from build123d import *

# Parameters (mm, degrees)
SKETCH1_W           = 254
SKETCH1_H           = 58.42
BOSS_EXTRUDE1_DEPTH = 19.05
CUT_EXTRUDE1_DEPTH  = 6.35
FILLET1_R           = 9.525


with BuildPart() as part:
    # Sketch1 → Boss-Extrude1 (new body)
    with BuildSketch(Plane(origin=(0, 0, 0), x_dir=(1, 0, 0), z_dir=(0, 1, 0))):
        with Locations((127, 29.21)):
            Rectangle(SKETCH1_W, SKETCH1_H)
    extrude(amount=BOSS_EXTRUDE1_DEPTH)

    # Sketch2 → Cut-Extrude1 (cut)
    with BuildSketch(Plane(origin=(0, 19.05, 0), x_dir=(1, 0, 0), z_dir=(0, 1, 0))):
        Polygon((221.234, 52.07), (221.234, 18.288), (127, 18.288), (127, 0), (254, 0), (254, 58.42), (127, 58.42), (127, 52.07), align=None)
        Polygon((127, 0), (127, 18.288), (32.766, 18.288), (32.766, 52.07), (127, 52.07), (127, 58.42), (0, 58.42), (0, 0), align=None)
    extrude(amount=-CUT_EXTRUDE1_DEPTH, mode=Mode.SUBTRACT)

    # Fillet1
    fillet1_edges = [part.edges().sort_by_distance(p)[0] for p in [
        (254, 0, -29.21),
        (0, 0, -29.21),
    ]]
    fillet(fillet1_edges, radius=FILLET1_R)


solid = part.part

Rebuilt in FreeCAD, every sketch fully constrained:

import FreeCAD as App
import Part
import Sketcher

V = App.Vector
Q = App.Units.Quantity


def edges_at(feature, points):
    """Names of the edges that pass closest to the given points."""
    edges = feature.Shape.Edges
    near = lambda p: min(range(len(edges)), key=lambda i: edges[i].distToShape(Part.Vertex(*p))[0])
    return sorted({f"Edge{near(p) + 1}" for p in points})

doc = App.newDocument("Part")
body = doc.addObject("PartDesign::Body", "Body")

# Sketch on XZ plane
sketch1 = body.newObject("Sketcher::SketchObject", "Sketch")
sketch1.AttachmentSupport = (doc.getObject("XZ_Plane"), [""])
sketch1.MapMode = "FlatFace"
sketch1.addGeometry([
    Part.LineSegment(V(0, -58.42, 0), V(0, 0, 0)),
    Part.LineSegment(V(0, 0, 0), V(254, 0, 0)),
    Part.LineSegment(V(254, 0, 0), V(254, -58.42, 0)),
    Part.LineSegment(V(254, -58.42, 0), V(0, -58.42, 0)),
], False)
sketch1.addConstraint([
    Sketcher.Constraint("Coincident", 0, 2, 1, 1),
    Sketcher.Constraint("Coincident", 1, 2, 2, 1),
    Sketcher.Constraint("Coincident", 2, 2, 3, 1),
    Sketcher.Constraint("Coincident", 3, 2, 0, 1),
    Sketcher.Constraint("Vertical", 0),
    Sketcher.Constraint("Horizontal", 1),
    Sketcher.Constraint("Vertical", 2),
    Sketcher.Constraint("Horizontal", 3),
    Sketcher.Constraint("Coincident", 0, 2, -1, 1),
    Sketcher.Constraint("DistanceX", 1, 1, 1, 2, Q("10 in")),
    Sketcher.Constraint("DistanceY", 0, 1, 0, 2, Q("2.3 in")),
])
pad1 = body.newObject("PartDesign::Pad", "Pad")
pad1.Profile = sketch1
pad1.Length = Q("0.75 in")
pad1.Reversed = True

# Sketch on XZ plane
sketch2 = body.newObject("Sketcher::SketchObject", "Sketch001")
sketch2.AttachmentSupport = (doc.getObject("XZ_Plane"), [""])
sketch2.MapMode = "FlatFace"
sketch2.AttachmentOffset = App.Placement(V(0, 0, -0.75 * 25.4), App.Rotation())
sketch2.addGeometry([
    Part.LineSegment(V(254, 0, 0), V(254, -58.42, 0)),  # 0
    Part.LineSegment(V(254, -58.42, 0), V(0, -58.42, 0)),  # 1
    Part.LineSegment(V(0, -58.42, 0), V(0, 0, 0)),  # 2
    Part.LineSegment(V(0, 0, 0), V(254, 0, 0)),  # 3
    Part.LineSegment(V(221.234, -52.07, 0), V(221.234, -18.288, 0)),  # 4
    Part.LineSegment(V(221.234, -18.288, 0), V(32.766, -18.288, 0)),  # 5
    Part.LineSegment(V(32.766, -18.288, 0), V(32.766, -52.07, 0)),  # 6
    Part.LineSegment(V(32.766, -52.07, 0), V(221.234, -52.07, 0)),  # 7
], False)
sketch2.addConstraint([
    Sketcher.Constraint("Coincident", 0, 2, 1, 1),
    Sketcher.Constraint("Coincident", 1, 2, 2, 1),
    Sketcher.Constraint("Coincident", 2, 2, 3, 1),
    Sketcher.Constraint("Coincident", 3, 2, 0, 1),
    Sketcher.Constraint("Coincident", 4, 2, 5, 1),
    Sketcher.Constraint("Coincident", 5, 2, 6, 1),
    Sketcher.Constraint("Coincident", 6, 2, 7, 1),
    Sketcher.Constraint("Coincident", 7, 2, 4, 1),
    Sketcher.Constraint("Vertical", 0),
    Sketcher.Constraint("Horizontal", 1),
    Sketcher.Constraint("Vertical", 2),
    Sketcher.Constraint("Horizontal", 3),
    Sketcher.Constraint("Vertical", 4),
    Sketcher.Constraint("Horizontal", 5),
    Sketcher.Constraint("Vertical", 6),
    Sketcher.Constraint("Horizontal", 7),
    Sketcher.Constraint("Coincident", 2, 2, -1, 1),
    Sketcher.Constraint("DistanceX", 1, 2, 1, 1, Q("10 in")),
    Sketcher.Constraint("DistanceY", 0, 2, 0, 1, Q("2.3 in")),
    Sketcher.Constraint("DistanceX", 5, 2, 5, 1, Q("7.42 in")),
    Sketcher.Constraint("DistanceY", 4, 1, 4, 2, Q("1.33 in")),
    Sketcher.Constraint("DistanceX", -1, 1, 4, 2, Q("8.71 in")),
    Sketcher.Constraint("DistanceY", 4, 2, -1, 1, Q("0.72 in")),
])
pocket1 = body.newObject("PartDesign::Pocket", "Pocket")
pocket1.Profile = sketch2
pocket1.Length = Q("0.25 in")
pocket1.Reversed = True
doc.recompute()

fillet = body.newObject("PartDesign::Fillet", "Fillet")
fillet.Base = (pocket1, edges_at(pocket1, [(254, 0, -29.21), (0, 0, -29.21)]))
fillet.Radius = Q("0.375 in")

doc.recompute()
